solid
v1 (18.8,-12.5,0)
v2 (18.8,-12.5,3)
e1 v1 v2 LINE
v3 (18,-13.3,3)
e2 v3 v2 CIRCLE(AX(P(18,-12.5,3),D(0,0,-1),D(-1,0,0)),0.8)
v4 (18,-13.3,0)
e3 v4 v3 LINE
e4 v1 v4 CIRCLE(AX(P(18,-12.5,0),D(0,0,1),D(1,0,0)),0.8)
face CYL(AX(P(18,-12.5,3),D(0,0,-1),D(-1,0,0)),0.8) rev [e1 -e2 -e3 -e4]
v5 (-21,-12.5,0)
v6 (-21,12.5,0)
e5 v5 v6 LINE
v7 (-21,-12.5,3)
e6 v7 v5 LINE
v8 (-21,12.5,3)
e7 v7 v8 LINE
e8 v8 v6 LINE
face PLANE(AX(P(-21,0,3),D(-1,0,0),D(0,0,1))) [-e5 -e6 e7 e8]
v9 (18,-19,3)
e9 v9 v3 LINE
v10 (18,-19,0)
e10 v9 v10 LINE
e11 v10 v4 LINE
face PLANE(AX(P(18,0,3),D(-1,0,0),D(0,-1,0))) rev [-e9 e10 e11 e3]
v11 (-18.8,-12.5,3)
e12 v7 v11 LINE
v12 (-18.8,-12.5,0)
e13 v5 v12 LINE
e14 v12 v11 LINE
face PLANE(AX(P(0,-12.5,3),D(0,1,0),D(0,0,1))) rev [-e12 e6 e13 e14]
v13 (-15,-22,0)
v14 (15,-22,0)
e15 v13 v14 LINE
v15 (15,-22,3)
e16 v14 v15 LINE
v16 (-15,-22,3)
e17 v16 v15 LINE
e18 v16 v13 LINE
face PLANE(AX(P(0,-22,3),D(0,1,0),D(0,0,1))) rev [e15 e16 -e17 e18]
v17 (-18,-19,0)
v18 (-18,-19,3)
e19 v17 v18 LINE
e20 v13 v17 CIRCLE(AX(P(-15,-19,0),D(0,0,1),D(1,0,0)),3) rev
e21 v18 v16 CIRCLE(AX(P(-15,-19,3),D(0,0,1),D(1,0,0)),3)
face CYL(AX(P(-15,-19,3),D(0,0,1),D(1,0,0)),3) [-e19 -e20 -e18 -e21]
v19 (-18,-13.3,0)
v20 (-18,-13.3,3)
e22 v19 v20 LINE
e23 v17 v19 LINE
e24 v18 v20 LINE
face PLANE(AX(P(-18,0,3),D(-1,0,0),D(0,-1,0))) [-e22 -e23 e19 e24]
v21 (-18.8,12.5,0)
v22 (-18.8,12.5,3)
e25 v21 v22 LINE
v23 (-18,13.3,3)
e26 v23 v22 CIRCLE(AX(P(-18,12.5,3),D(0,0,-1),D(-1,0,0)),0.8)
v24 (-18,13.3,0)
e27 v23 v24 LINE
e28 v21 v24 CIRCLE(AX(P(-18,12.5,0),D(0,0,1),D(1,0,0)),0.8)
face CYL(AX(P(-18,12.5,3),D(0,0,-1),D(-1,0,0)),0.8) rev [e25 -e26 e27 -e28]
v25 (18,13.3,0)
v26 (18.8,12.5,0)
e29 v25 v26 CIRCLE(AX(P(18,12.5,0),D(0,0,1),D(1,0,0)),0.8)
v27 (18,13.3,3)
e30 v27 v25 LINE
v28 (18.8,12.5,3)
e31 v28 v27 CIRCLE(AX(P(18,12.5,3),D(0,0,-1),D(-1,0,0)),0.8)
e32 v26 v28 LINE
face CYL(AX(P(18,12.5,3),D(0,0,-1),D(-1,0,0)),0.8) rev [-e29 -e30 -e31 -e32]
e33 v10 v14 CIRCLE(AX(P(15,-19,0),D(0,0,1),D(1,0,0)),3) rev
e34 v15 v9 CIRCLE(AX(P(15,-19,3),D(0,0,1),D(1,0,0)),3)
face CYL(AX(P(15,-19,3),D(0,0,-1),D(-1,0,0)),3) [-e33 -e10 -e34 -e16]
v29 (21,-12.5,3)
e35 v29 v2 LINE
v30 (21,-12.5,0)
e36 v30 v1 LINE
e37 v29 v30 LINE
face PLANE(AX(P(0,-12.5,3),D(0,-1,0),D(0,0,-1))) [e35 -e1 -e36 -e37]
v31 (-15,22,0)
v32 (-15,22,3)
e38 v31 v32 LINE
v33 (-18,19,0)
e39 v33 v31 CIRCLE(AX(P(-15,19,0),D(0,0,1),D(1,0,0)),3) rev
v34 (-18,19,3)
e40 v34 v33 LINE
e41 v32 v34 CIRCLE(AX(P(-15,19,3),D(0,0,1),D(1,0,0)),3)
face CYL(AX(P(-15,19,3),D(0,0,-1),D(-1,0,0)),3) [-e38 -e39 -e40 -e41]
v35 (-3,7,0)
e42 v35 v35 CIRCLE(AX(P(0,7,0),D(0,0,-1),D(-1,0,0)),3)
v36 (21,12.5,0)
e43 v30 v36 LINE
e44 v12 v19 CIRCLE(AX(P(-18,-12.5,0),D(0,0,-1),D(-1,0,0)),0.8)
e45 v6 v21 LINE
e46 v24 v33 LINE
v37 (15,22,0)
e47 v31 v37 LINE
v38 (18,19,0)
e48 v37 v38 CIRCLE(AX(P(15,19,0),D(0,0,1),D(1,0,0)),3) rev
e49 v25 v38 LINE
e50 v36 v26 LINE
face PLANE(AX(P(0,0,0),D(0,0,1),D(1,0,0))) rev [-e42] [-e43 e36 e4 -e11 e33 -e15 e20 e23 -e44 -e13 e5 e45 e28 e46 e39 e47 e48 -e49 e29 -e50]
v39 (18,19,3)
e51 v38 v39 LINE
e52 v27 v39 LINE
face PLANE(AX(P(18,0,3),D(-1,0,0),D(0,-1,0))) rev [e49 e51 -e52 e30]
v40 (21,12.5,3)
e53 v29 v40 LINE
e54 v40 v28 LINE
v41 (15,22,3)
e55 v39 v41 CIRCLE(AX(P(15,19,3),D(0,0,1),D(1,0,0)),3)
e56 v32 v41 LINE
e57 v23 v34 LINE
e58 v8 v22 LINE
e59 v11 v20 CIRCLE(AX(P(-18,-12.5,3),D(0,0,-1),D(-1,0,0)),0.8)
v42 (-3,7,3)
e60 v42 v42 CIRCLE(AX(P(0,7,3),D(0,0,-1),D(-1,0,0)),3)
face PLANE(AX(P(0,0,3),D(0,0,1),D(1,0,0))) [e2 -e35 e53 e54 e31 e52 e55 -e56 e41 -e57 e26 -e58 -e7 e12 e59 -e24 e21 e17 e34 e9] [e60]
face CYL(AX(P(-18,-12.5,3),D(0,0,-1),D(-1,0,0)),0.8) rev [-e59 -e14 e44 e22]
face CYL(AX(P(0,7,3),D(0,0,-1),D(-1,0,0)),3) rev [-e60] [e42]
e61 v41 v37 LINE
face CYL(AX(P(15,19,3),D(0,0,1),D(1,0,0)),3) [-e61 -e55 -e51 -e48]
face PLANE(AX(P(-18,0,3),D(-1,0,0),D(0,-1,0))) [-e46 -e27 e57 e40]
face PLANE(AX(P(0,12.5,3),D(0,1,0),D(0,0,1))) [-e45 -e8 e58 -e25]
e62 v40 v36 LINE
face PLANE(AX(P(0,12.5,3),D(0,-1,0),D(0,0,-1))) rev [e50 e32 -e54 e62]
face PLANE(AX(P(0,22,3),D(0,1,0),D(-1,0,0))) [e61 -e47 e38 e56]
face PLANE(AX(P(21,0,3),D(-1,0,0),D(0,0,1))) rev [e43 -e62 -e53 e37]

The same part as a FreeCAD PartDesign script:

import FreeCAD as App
import Part
import Sketcher
from FreeCAD import Vector


def edges_at(feature, points):
    """Names of the edges that pass closest to the given points."""
    edges = feature.Shape.Edges
    near = lambda p: min(range(len(edges)), key=lambda i: edges[i].distToShape(Part.Vertex(*p))[0])
    return sorted({f"Edge{near(p) + 1}" for p in points})


def add_polygon(sketch, points):
    """Adds a closed chain of lines whose ends are joined by coincident constraints."""
    first, n = sketch.GeometryCount, len(points)
    for a, b in zip(points, points[1:] + points[:1]):
        sketch.addGeometry(Part.LineSegment(App.Vector(*a, 0), App.Vector(*b, 0)), False)
    for i in range(n):
        sketch.addConstraint(Sketcher.Constraint("Coincident", first + i, 2, first + (i + 1) % n, 1))

doc = App.newDocument("Part")
body = doc.addObject("PartDesign::Body", "Body")

# Sketch on XY plane
sketch1 = doc.addObject("Sketcher::SketchObject", "Sketch")
body.addObject(sketch1)
sketch1.AttachmentSupport = (doc.XY_Plane, [""])
sketch1.MapMode = "FlatFace"
add_polygon(sketch1, [(-18, -12.5), (-18, -22), (18, -22), (18, -12.5), (21, -12.5), (21, 12.5), (18, 12.5), (18, 22), (-18, 22), (-18, 12.5), (-21, 12.5), (-21, -12.5)])  # lines 0-11
sketch1.addConstraint([
    Sketcher.Constraint("Vertical", 0),
    Sketcher.Constraint("Horizontal", 1),
    Sketcher.Constraint("Vertical", 2),
    Sketcher.Constraint("Horizontal", 3),
    Sketcher.Constraint("Vertical", 4),
    Sketcher.Constraint("Horizontal", 5),
    Sketcher.Constraint("Vertical", 6),
    Sketcher.Constraint("Horizontal", 7),
    Sketcher.Constraint("Vertical", 8),
    Sketcher.Constraint("Horizontal", 9),
    Sketcher.Constraint("Vertical", 10),
    Sketcher.Constraint("Horizontal", 11),
    Sketcher.Constraint("Symmetric", 0, 2, 6, 2, -1, 1),
    Sketcher.Constraint("Symmetric", 2, 2, 8, 2, -1, 1),
    Sketcher.Constraint("Symmetric", 4, 2, 10, 2, -1, 1),
    Sketcher.Constraint("Symmetric", 5, 2, 8, 2, -2),
    Sketcher.Constraint("DistanceX", 1, 1, 1, 2, 36.0),
    Sketcher.Constraint("DistanceX", 3, 1, 3, 2, 3.0),
    Sketcher.Constraint("DistanceY", 4, 1, 4, 2, 25.0),
    Sketcher.Constraint("DistanceY", 0, 2, 0, 1, 9.5),
])
pad1 = doc.addObject("PartDesign::Pad", "Pad")
body.addObject(pad1)
pad1.Profile = sketch1
pad1.Length = 3

# Sketch on XY plane
sketch2 = doc.addObject("Sketcher::SketchObject", "Sketch001")
body.addObject(sketch2)
sketch2.AttachmentSupport = (doc.XY_Plane, [""])
sketch2.MapMode = "FlatFace"
sketch2.addGeometry(Part.Circle(Vector(0, 7, 0), Vector(0, 0, 1), 3), False)
sketch2.addConstraint([
    Sketcher.Constraint("PointOnObject", 0, 3, -2),
    Sketcher.Constraint("Diameter", 0, 6.0),
    Sketcher.Constraint("DistanceY", -1, 1, 0, 3, 7.0),
])
pocket1 = doc.addObject("PartDesign::Pocket", "Pocket")
body.addObject(pocket1)
pocket1.Profile = sketch2
pocket1.Type = "ThroughAll"
pocket1.Reversed = True

# Sketch on XY plane
sketch3 = doc.addObject("Sketcher::SketchObject", "Sketch002")
body.addObject(sketch3)
sketch3.AttachmentSupport = (doc.XY_Plane, [""])
sketch3.MapMode = "FlatFace"
sketch3.addGeometry([
    Part.Circle(Vector(18, 12.5, 0), Vector(0, 0, 1), 0.8),
    Part.Circle(Vector(18, -12.5, 0), Vector(0, 0, 1), 0.8),
    Part.Circle(Vector(-18, -12.5, 0), Vector(0, 0, 1), 0.8),
    Part.Circle(Vector(-18, 12.5, 0), Vector(0, 0, 1), 0.8),
], False)
sketch3.addConstraint([
    Sketcher.Constraint("Equal", 0, 1),
    Sketcher.Constraint("Equal", 1, 2),
    Sketcher.Constraint("Equal", 2, 3),
    Sketcher.Constraint("Symmetric", 0, 3, 2, 3, -1, 1),
    Sketcher.Constraint("Symmetric", 1, 3, 3, 3, -1, 1),
    Sketcher.Constraint("Symmetric", 1, 3, 2, 3, -2),
    Sketcher.Constraint("Diameter", 0, 1.6),
    Sketcher.Constraint("DistanceX", -1, 1, 0, 3, 18.0),
    Sketcher.Constraint("DistanceY", 1, 3, 0, 3, 25.0),
])
pocket2 = doc.addObject("PartDesign::Pocket", "Pocket001")
body.addObject(pocket2)
pocket2.Profile = sketch3
pocket2.Type = "ThroughAll"
pocket2.Reversed = True
doc.recompute()

fillet = doc.addObject("PartDesign::Fillet", "Fillet")
body.addObject(fillet)
fillet.Base = (pocket2, edges_at(pocket2, [
    (-18, 22, 1.5),
    (18, 22, 1.5),
    (18, -22, 1.5),
    (-18, -22, 1.5),
]))
fillet.Radius = 3

doc.recompute()
